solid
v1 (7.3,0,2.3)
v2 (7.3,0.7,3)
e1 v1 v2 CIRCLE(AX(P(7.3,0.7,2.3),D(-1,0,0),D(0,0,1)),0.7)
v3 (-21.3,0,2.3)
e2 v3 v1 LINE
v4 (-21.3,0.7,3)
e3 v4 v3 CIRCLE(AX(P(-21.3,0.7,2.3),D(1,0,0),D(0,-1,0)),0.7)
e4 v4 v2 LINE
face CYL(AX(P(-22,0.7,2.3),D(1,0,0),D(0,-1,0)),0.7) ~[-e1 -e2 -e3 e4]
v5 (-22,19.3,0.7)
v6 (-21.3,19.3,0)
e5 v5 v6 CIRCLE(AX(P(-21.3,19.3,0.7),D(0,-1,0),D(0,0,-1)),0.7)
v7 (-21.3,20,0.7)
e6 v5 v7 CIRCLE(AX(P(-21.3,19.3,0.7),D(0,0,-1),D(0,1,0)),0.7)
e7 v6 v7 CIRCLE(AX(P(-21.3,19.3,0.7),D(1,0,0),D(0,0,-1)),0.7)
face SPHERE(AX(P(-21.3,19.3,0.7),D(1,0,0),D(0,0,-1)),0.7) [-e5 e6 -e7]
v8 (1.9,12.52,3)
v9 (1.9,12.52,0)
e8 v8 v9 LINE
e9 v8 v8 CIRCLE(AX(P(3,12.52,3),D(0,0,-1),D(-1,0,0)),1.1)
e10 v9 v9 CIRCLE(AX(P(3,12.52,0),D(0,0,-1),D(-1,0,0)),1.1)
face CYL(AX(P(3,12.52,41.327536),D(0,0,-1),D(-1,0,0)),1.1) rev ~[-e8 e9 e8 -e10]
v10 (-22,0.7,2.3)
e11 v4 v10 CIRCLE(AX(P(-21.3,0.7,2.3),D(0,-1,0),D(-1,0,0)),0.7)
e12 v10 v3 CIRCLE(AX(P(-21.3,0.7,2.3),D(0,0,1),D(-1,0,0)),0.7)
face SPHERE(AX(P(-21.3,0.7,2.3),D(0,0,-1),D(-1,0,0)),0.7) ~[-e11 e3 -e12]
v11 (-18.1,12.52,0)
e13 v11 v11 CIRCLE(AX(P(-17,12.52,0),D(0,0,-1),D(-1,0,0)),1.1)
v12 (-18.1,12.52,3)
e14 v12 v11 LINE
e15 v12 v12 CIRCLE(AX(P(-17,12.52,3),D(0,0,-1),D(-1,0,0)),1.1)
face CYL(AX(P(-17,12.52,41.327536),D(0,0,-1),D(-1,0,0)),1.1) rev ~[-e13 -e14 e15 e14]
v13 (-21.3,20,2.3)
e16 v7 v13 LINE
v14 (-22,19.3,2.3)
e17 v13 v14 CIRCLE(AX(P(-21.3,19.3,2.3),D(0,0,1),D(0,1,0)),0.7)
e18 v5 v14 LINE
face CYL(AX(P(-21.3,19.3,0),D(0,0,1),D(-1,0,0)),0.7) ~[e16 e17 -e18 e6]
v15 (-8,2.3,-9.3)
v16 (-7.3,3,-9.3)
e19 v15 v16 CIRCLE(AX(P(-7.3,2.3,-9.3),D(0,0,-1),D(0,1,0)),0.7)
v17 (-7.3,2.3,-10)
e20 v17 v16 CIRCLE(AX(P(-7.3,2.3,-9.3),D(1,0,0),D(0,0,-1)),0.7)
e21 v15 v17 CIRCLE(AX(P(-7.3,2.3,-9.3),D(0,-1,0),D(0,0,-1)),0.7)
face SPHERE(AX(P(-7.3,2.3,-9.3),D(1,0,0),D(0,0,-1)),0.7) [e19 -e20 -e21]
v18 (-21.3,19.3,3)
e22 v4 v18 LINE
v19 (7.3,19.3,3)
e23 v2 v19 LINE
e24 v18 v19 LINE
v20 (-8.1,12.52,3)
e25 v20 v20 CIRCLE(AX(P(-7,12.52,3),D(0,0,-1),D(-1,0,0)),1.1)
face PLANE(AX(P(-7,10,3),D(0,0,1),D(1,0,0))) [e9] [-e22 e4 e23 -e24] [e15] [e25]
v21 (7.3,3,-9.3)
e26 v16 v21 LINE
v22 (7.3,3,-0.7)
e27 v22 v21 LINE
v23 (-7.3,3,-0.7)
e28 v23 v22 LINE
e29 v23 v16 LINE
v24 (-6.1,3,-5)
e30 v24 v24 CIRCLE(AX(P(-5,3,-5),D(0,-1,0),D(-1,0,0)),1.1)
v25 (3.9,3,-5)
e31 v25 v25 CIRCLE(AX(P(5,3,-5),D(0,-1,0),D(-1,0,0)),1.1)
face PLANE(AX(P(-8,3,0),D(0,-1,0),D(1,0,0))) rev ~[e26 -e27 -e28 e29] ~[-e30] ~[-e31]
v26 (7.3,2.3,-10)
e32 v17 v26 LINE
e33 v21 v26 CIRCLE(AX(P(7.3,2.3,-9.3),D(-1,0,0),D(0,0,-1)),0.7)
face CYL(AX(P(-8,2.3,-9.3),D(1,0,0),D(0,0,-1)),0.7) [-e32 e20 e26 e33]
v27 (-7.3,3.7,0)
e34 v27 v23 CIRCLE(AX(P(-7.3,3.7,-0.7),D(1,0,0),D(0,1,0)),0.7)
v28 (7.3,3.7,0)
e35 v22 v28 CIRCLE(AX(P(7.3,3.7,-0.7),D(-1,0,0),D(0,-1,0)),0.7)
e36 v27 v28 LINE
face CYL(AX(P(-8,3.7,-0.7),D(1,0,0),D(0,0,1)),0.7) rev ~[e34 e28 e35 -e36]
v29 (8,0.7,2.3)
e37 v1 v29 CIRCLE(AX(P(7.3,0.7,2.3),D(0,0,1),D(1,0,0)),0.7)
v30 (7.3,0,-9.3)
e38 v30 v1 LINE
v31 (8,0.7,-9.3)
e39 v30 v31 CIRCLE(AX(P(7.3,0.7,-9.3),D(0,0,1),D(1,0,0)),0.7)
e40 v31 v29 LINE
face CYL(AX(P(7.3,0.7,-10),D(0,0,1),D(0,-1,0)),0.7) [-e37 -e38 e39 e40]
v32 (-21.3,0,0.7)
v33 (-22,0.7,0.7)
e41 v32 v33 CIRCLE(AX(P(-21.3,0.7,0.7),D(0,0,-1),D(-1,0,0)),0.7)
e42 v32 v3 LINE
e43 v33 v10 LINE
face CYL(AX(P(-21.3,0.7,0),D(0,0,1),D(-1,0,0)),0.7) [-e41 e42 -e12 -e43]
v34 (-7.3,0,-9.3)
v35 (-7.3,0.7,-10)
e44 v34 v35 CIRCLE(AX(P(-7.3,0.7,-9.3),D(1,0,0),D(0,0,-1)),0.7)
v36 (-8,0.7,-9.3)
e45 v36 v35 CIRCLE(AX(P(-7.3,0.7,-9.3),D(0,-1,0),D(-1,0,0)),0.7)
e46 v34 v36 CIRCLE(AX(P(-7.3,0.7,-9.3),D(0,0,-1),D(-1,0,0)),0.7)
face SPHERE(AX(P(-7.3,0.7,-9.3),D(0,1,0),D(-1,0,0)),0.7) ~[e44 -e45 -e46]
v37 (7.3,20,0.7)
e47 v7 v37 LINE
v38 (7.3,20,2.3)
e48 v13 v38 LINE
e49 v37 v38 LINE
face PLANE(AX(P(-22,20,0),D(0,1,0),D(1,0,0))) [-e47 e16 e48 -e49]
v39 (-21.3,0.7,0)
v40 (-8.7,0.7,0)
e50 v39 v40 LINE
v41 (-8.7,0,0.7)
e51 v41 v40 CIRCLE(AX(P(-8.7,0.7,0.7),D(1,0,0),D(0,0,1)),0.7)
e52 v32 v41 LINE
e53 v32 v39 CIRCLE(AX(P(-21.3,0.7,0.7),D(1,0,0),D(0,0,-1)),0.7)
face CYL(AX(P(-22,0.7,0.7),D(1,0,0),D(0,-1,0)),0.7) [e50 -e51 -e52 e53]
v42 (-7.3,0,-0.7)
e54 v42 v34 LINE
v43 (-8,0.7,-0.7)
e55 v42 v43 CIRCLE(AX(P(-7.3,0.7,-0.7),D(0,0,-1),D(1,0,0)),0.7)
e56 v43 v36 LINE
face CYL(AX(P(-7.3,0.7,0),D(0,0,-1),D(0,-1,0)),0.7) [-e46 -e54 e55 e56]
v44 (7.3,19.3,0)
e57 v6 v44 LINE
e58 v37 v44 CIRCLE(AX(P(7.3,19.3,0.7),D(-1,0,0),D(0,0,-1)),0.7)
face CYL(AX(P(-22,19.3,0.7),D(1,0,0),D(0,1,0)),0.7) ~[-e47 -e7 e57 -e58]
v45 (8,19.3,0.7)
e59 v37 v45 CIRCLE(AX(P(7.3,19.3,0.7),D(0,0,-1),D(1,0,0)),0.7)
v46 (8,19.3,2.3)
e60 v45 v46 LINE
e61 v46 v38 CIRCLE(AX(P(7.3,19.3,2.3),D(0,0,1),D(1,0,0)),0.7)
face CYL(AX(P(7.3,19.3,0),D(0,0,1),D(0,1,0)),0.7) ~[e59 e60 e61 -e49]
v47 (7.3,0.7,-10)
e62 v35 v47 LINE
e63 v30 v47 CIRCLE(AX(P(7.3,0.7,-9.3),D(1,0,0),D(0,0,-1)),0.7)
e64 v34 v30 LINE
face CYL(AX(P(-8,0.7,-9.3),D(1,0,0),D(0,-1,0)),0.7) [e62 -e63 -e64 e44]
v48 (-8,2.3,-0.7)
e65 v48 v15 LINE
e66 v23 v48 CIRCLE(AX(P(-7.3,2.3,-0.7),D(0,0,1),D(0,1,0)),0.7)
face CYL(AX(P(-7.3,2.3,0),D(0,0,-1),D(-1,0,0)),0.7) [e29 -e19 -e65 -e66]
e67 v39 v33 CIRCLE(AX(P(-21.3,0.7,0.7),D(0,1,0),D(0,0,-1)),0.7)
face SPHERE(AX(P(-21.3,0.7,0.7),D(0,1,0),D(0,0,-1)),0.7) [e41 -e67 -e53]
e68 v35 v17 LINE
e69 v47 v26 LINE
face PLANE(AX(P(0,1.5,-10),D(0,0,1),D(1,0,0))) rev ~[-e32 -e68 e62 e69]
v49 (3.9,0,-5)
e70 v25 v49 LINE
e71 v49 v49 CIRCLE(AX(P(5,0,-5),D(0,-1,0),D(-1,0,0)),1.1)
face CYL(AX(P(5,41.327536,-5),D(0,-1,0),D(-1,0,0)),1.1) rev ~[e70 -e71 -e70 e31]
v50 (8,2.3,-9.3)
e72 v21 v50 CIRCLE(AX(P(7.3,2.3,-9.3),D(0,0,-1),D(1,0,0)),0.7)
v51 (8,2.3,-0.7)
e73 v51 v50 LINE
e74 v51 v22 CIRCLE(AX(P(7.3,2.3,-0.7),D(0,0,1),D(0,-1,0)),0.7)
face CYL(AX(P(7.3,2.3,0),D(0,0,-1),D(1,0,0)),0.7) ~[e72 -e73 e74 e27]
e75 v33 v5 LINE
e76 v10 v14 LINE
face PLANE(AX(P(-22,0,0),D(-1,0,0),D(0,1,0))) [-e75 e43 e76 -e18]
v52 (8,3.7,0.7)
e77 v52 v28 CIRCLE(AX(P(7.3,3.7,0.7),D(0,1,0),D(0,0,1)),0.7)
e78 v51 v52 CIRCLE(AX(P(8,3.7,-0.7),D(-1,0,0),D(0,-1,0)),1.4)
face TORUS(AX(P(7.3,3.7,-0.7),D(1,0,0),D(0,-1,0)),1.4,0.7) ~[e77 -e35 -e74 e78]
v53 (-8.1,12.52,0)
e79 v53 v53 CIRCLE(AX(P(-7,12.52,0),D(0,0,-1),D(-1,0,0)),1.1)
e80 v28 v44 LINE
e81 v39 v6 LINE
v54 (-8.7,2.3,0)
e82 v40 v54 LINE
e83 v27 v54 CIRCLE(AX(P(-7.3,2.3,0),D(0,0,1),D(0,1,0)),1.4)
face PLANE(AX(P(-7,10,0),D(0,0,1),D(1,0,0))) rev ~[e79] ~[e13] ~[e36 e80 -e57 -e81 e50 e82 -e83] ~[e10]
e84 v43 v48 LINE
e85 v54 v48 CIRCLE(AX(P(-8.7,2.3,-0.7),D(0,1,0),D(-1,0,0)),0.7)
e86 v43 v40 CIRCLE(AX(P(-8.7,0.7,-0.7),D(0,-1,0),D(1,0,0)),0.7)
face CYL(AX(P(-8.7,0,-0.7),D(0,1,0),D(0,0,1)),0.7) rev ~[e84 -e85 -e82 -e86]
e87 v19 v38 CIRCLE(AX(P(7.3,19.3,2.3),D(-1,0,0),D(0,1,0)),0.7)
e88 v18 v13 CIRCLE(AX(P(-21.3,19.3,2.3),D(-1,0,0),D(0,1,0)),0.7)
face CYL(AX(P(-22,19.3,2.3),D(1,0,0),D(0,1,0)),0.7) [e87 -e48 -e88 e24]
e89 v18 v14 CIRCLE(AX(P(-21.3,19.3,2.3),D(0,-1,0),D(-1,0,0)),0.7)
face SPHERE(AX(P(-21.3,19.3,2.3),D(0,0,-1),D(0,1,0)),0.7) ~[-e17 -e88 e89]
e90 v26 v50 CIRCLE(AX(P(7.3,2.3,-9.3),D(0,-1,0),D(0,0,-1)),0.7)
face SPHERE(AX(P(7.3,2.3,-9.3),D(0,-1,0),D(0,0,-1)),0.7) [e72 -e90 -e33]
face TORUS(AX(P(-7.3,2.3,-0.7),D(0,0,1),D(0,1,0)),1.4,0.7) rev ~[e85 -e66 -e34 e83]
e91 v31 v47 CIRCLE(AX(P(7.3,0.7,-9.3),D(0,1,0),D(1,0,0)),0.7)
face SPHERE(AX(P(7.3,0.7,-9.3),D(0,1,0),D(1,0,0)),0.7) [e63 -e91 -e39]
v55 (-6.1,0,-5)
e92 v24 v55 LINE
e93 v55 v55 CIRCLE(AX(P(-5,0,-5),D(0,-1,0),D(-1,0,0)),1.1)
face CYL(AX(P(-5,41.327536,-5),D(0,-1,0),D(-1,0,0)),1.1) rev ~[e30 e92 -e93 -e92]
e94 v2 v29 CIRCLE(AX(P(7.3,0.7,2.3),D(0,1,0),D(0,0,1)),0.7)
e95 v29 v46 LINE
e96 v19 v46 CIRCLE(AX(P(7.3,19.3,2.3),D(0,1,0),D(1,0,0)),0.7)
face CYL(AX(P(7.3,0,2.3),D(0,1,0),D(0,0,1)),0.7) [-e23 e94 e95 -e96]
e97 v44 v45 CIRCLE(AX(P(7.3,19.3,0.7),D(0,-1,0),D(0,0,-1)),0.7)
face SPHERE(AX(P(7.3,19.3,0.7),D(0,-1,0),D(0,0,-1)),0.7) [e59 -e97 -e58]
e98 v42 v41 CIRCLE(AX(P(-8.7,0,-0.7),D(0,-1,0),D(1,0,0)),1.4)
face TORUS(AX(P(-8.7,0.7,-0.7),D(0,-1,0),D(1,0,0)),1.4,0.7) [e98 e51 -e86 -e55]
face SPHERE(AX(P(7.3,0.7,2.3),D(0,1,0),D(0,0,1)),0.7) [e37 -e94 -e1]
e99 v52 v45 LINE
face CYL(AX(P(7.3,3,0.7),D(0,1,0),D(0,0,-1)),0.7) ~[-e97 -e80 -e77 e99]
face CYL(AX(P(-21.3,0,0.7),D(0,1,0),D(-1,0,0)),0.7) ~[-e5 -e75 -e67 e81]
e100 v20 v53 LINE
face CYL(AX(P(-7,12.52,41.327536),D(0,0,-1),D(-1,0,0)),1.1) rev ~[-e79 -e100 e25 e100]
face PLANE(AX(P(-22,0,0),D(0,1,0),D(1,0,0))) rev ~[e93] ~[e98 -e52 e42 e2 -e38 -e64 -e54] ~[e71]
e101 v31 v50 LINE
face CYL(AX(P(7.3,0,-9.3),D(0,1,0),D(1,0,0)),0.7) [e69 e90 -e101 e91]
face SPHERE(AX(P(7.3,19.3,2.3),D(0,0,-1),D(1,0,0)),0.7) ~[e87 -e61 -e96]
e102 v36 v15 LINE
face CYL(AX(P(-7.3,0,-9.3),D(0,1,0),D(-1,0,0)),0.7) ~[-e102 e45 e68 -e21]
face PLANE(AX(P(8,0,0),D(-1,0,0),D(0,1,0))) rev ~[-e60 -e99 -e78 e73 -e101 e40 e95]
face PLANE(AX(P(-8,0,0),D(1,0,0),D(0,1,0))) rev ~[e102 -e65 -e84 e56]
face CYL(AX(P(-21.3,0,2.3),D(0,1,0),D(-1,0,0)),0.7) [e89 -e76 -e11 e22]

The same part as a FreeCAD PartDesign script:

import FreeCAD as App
import Part
import Sketcher
from FreeCAD import Vector
Q = App.Units.Quantity


def edges_at(feature, points):
    """Names of the edges that pass closest to the given points."""
    edges = feature.Shape.Edges
    near = lambda p: min(range(len(edges)), key=lambda i: edges[i].distToShape(Part.Vertex(*p))[0])
    return sorted({f"Edge{near(p) + 1}" for p in points})

doc = App.newDocument("Part")
body = doc.addObject("PartDesign::Body", "Body")

sketch1 = doc.addObject("Sketcher::SketchObject", "Sketch")
body.addObject(sketch1)
sketch1.AttachmentSupport = (doc.XY_Plane, [""])
sketch1.MapMode = "FlatFace"
sketch1.addGeometry(Part.LineSegment(Vector(-8, 3, 0), Vector(-8, 0, 0)), False)
sketch1.addGeometry(Part.LineSegment(Vector(-8, 0, 0), Vector(8, 0, 0)), False)
sketch1.addGeometry(Part.LineSegment(Vector(8, 0, 0), Vector(8, 3, 0)), False)
sketch1.addGeometry(Part.LineSegment(Vector(8, 3, 0), Vector(-8, 3, 0)), False)
sketch1.addConstraint(Sketcher.Constraint("Coincident", 0, 2, 1, 1))
sketch1.addConstraint(Sketcher.Constraint("Coincident", 1, 2, 2, 1))
sketch1.addConstraint(Sketcher.Constraint("Coincident", 2, 2, 3, 1))
sketch1.addConstraint(Sketcher.Constraint("Coincident", 3, 2, 0, 1))
sketch1.addConstraint(Sketcher.Constraint("Vertical", 0))
sketch1.addConstraint(Sketcher.Constraint("Horizontal", 1))
sketch1.addConstraint(Sketcher.Constraint("Vertical", 2))
sketch1.addConstraint(Sketcher.Constraint("Horizontal", 3))
sketch1.addConstraint(Sketcher.Constraint("Symmetric", 0, 2, 1, 2, -1, 1))
sketch1.addConstraint(Sketcher.Constraint("DistanceX", 1, 1, 1, 2, Q("16 mm")))
sketch1.addConstraint(Sketcher.Constraint("DistanceY", 0, 2, 0, 1, Q("3 mm")))
pad1 = doc.addObject("PartDesign::Pad", "Pad")
body.addObject(pad1)
pad1.Profile = sketch1
pad1.Length = 10
pad1.Reversed = True

sketch2 = doc.addObject("Sketcher::SketchObject", "Sketch001")
body.addObject(sketch2)
sketch2.AttachmentSupport = (doc.XY_Plane, [""])
sketch2.MapMode = "FlatFace"
sketch2.addGeometry(Part.LineSegment(Vector(-22, 20, 0), Vector(-22, 0, 0)), False)
sketch2.addGeometry(Part.LineSegment(Vector(-22, 0, 0), Vector(8, 0, 0)), False)
sketch2.addGeometry(Part.LineSegment(Vector(8, 0, 0), Vector(8, 20, 0)), False)
sketch2.addGeometry(Part.LineSegment(Vector(8, 20, 0), Vector(-22, 20, 0)), False)
sketch2.addConstraint(Sketcher.Constraint("Coincident", 0, 2, 1, 1))
sketch2.addConstraint(Sketcher.Constraint("Coincident", 1, 2, 2, 1))
sketch2.addConstraint(Sketcher.Constraint("Coincident", 2, 2, 3, 1))
sketch2.addConstraint(Sketcher.Constraint("Coincident", 3, 2, 0, 1))
sketch2.addConstraint(Sketcher.Constraint("Vertical", 0))
sketch2.addConstraint(Sketcher.Constraint("Horizontal", 1))
sketch2.addConstraint(Sketcher.Constraint("Vertical", 2))
sketch2.addConstraint(Sketcher.Constraint("Horizontal", 3))
sketch2.addConstraint(Sketcher.Constraint("PointOnObject", 0, 2, -1))
sketch2.addConstraint(Sketcher.Constraint("DistanceX", 1, 1, 1, 2, Q("30 mm")))
sketch2.addConstraint(Sketcher.Constraint("DistanceY", 0, 2, 0, 1, Q("20 mm")))
sketch2.addConstraint(Sketcher.Constraint("DistanceX", 0, 2, -1, 1, Q("22 mm")))
pad2 = doc.addObject("PartDesign::Pad", "Pad001")
body.addObject(pad2)
pad2.Profile = sketch2
pad2.Length = 3

sketch3 = doc.addObject("Sketcher::SketchObject", "Sketch002")
body.addObject(sketch3)
sketch3.AttachmentSupport = (doc.XZ_Plane, [""])
sketch3.MapMode = "FlatFace"
sketch3.AttachmentOffset = App.Placement(Vector(0, 0, -3), App.Rotation())
sketch3.addGeometry(Part.Circle(Vector(-5, -5, 0), Vector(0, 0, 1), 1.1), False)
sketch3.addGeometry(Part.Circle(Vector(5, -5, 0), Vector(0, 0, 1), 1.1), False)
sketch3.addConstraint(Sketcher.Constraint("Equal", 0, 1))
sketch3.addConstraint(Sketcher.Constraint("Symmetric", 0, 3, 1, 3, -2))
sketch3.addConstraint(Sketcher.Constraint("Diameter", 0, Q("2.2 mm")))
sketch3.addConstraint(Sketcher.Constraint("DistanceX", 0, 3, -1, 1, Q("5 mm")))
sketch3.addConstraint(Sketcher.Constraint("DistanceY", 0, 3, -1, 1, Q("5 mm")))
doc.recompute()
hole = doc.addObject("PartDesign::Hole", "Hole")
body.addObject(hole)
hole.Profile = sketch3
hole.ThreadType = "None"
hole.Diameter = 2.2
hole.DepthType = "ThroughAll"
hole.Reversed = True

sketch4 = doc.addObject("Sketcher::SketchObject", "Sketch003")
body.addObject(sketch4)
sketch4.AttachmentSupport = (doc.XY_Plane, [""])
sketch4.MapMode = "FlatFace"
sketch4.AttachmentOffset = App.Placement(Vector(0, 0, 3), App.Rotation())
sketch4.addGeometry(Part.Circle(Vector(-17, 12.52, 0), Vector(0, 0, 1), 1.1), False)
sketch4.addGeometry(Part.Circle(Vector(-7, 12.52, 0), Vector(0, 0, 1), 1.1), False)
sketch4.addGeometry(Part.Circle(Vector(3, 12.52, 0), Vector(0, 0, 1), 1.1), False)
sketch4.addConstraint(Sketcher.Constraint("Equal", 0, 1))
sketch4.addConstraint(Sketcher.Constraint("Equal", 1, 2))
sketch4.addConstraint(Sketcher.Constraint("Horizontal", 0, 3, 1, 3))
sketch4.addConstraint(Sketcher.Constraint("Horizontal", 1, 3, 2, 3))
sketch4.addConstraint(Sketcher.Constraint("Diameter", 0, Q("2.2 mm")))
sketch4.addConstraint(Sketcher.Constraint("DistanceX", 0, 3, -1, 1, Q("17 mm")))
sketch4.addConstraint(Sketcher.Constraint("DistanceX", 1, 3, -1, 1, Q("7 mm")))
sketch4.addConstraint(Sketcher.Constraint("DistanceX", -1, 1, 2, 3, Q("3 mm")))
sketch4.addConstraint(Sketcher.Constraint("DistanceY", -1, 1, 0, 3, Q("12.52 mm")))
doc.recompute()
hole2 = doc.addObject("PartDesign::Hole", "Hole001")
body.addObject(hole2)
hole2.Profile = sketch4
hole2.ThreadType = "None"
hole2.Diameter = 2.2
hole2.DepthType = "ThroughAll"
doc.recompute()

fillet = doc.addObject("PartDesign::Fillet", "Fillet")
body.addObject(fillet)
fillet.Base = (hole2, edges_at(hole2, [
    (8, 1.5, -10),
    (8, 11.5, 0),
    (-7, 20, 0),
    (8, 20, 1.5),
    (-22, 10, 0),
    (-22, 20, 1.5),
    (-15, 0, 0),
    (-22, 0, 1.5),
    (8, 10, 3),
    (-7, 20, 3),
    (0, 3, -10),
    (-22, 10, 3),
    (-7, 0, 3),
    (-8, 1.5, -10),
    (0, 3, 0),
    (-8, 1.5, 0),
    (-8, 3, -5),
    (8, 3, -5),
    (8, 0, -3.5),
    (-8, 0, -5),
    (0, 0, -10),
]))
fillet.Radius = 0.7

doc.recompute()
